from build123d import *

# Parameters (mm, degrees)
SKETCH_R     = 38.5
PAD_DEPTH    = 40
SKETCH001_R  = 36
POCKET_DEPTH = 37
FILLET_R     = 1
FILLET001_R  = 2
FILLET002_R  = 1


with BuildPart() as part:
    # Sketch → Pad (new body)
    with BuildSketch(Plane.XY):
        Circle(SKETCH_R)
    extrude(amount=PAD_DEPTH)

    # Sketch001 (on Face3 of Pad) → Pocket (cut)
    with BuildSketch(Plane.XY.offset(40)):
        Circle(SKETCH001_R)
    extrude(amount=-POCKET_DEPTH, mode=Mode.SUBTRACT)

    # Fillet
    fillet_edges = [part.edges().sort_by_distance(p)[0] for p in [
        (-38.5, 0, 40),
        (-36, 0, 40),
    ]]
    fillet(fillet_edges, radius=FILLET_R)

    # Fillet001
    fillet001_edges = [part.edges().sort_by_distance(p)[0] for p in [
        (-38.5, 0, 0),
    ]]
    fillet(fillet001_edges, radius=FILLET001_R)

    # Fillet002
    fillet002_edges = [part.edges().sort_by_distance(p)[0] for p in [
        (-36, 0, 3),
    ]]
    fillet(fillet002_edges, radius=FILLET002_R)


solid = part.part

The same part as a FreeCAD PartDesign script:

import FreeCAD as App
import Part
import Sketcher

V = App.Vector


def edges_at(feature, points):
    """Names of the edges that pass closest to the given points."""
    edges = feature.Shape.Edges
    near = lambda p: min(range(len(edges)), key=lambda i: edges[i].distToShape(Part.Vertex(*p))[0])
    return sorted({f"Edge{near(p) + 1}" for p in points})

doc = App.newDocument("Part")
body = doc.addObject("PartDesign::Body", "Body")

sketch1 = body.newObject("Sketcher::SketchObject", "Sketch")
sketch1.AttachmentSupport = (doc.getObject("XY_Plane"), [""])
sketch1.MapMode = "FlatFace"
sketch1.addGeometry(Part.Circle(V(0, 0, 0), V(0, 0, 1), 38), False)
sketch1.addConstraint([
    Sketcher.Constraint("Coincident", 0, 3, -1, 1),
    Sketcher.Constraint("Diameter", 0, 77.0),
])
pad1 = body.newObject("PartDesign::Pad", "Pad")
pad1.Profile = sketch1
pad1.Length = 40

sketch2 = body.newObject("Sketcher::SketchObject", "Sketch001")
sketch2.AttachmentSupport = (doc.getObject("XY_Plane"), [""])
sketch2.MapMode = "FlatFace"
sketch2.AttachmentOffset = App.Placement(V(0, 0, 40), App.Rotation())
sketch2.addGeometry(Part.Circle(V(0, 0, 0), V(0, 0, 1), 36), False)
sketch2.addConstraint([
    Sketcher.Constraint("Coincident", 0, 3, -1, 1),
    Sketcher.Constraint("Diameter", 0, 72.0),
])
pocket1 = body.newObject("PartDesign::Pocket", "Pocket")
pocket1.Profile = sketch2
pocket1.Length = 37
doc.recompute()

fillet = body.newObject("PartDesign::Fillet", "Fillet")
fillet.Base = (pocket1, edges_at(pocket1, [(-38.5, 0, 40), (-36, 0, 40)]))
fillet.Radius = 1
doc.recompute()

fillet2 = body.newObject("PartDesign::Fillet", "Fillet001")
fillet2.Base = (fillet, edges_at(fillet, [(-38.5, 0, 0)]))
fillet2.Radius = 2
doc.recompute()

fillet3 = body.newObject("PartDesign::Fillet", "Fillet002")
fillet3.Base = (fillet2, edges_at(fillet2, [(-36, 0, 3)]))
fillet3.Radius = 1

doc.recompute()
